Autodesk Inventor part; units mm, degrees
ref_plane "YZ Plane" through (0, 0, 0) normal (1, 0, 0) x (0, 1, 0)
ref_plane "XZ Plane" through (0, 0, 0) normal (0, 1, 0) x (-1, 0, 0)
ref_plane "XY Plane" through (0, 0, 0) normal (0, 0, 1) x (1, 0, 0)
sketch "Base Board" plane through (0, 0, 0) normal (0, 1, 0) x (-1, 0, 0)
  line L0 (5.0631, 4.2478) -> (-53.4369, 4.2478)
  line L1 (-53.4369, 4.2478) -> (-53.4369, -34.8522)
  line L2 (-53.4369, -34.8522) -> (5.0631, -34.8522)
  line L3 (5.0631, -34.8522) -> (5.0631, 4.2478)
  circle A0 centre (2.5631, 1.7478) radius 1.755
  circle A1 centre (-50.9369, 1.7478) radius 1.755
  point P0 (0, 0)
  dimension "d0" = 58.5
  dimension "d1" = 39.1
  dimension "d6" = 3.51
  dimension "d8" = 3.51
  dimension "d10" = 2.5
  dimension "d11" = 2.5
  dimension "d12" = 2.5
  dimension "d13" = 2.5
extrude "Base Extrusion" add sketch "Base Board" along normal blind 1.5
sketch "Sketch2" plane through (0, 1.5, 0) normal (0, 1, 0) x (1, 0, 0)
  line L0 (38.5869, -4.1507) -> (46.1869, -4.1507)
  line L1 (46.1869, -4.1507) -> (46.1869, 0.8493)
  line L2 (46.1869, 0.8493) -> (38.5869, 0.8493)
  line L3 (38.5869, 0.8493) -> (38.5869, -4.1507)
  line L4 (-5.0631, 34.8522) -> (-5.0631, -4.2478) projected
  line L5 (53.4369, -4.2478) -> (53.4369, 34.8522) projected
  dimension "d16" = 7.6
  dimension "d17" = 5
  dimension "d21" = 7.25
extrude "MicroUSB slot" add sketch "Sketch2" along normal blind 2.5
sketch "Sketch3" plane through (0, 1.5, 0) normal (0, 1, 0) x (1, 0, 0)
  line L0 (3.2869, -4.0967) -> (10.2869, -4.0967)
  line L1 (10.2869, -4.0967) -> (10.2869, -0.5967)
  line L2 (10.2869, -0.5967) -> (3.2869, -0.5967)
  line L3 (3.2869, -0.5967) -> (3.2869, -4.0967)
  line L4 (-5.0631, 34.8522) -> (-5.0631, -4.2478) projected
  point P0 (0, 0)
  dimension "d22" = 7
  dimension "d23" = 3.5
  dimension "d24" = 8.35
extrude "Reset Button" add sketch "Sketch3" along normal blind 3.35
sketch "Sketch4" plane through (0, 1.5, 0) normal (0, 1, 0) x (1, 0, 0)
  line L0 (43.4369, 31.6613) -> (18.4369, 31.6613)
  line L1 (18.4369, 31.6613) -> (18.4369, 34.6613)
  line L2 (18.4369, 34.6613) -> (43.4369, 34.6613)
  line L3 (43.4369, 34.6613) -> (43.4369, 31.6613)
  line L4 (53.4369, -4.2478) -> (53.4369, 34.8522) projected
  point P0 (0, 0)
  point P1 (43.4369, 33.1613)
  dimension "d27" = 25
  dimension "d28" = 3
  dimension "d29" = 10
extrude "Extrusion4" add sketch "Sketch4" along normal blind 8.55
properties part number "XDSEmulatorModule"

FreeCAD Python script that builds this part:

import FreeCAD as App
import Part
import Sketcher


def add_polygon(sketch, points):
    """Adds a closed chain of lines whose ends are joined by coincident constraints."""
    first, n = sketch.GeometryCount, len(points)
    for a, b in zip(points, points[1:] + points[:1]):
        sketch.addGeometry(Part.LineSegment(App.Vector(*a, 0), App.Vector(*b, 0)), False)
    for i in range(n):
        sketch.addConstraint(Sketcher.Constraint("Coincident", first + i, 2, first + (i + 1) % n, 1))

doc = App.newDocument("Part")
body = doc.addObject("PartDesign::Body", "Body")

sketch1 = body.newObject("Sketcher::SketchObject", "Sketch")
sketch1.AttachmentSupport = (doc.getObject("XZ_Plane"), [""])
sketch1.MapMode = "FlatFace"
add_polygon(sketch1, [(-5.1, -34.9), (-5.1, 4.2), (53.4, 4.2), (53.4, -34.9)])
sketch1.addGeometry(Part.Circle(App.Vector(50.9, 1.7, 0), App.Vector(0, 0, 1), 1.8), False)
sketch1.addGeometry(Part.Circle(App.Vector(-2.6, 1.7, 0), App.Vector(0, 0, 1), 1.8), False)
sketch1.addConstraint([
    Sketcher.Constraint("Vertical", 0),
    Sketcher.Constraint("Horizontal", 1),
    Sketcher.Constraint("Vertical", 2),
    Sketcher.Constraint("Horizontal", 3),
    Sketcher.Constraint("Equal", 4, 5),
    Sketcher.Constraint("Horizontal", 4, 3, 5, 3),
    Sketcher.Constraint("Diameter", 4, 3.51),
    Sketcher.Constraint("DistanceX", 1, 1, 1, 2, 58.5),
    Sketcher.Constraint("DistanceY", 0, 1, 0, 2, 39.1),
    Sketcher.Constraint("DistanceX", 0, 2, 5, 3, 2.5),
    Sketcher.Constraint("DistanceY", 5, 3, 0, 2, 2.5),
    Sketcher.Constraint("DistanceX", 4, 3, 1, 2, 2.5),
    Sketcher.Constraint("DistanceX", -1, 1, 4, 3, 50.937),
    Sketcher.Constraint("DistanceY", -1, 1, 4, 3, 1.7478),
])
pad1 = body.newObject("PartDesign::Pad", "Pad")
pad1.Profile = sketch1
pad1.Length = 1.5
pad1.Reversed = True

sketch2 = body.newObject("Sketcher::SketchObject", "Sketch001")
sketch2.AttachmentSupport = (doc.getObject("XZ_Plane"), [""])
sketch2.MapMode = "FlatFace"
sketch2.AttachmentOffset = App.Placement(App.Vector(0, 0, -1.5), App.Rotation())
add_polygon(sketch2, [(39, -1), (39, 4), (46, 4), (46, -1)])
sketch2.addConstraint([
    Sketcher.Constraint("Vertical", 0),
    Sketcher.Constraint("Horizontal", 1),
    Sketcher.Constraint("Vertical", 2),
    Sketcher.Constraint("Horizontal", 3),
    Sketcher.Constraint("DistanceY", 0, 1, 0, 2, 5.0),
    Sketcher.Constraint("DistanceX", 1, 1, 1, 2, 7.6),
    Sketcher.Constraint("DistanceX", -1, 1, 0, 2, 38.587),
    Sketcher.Constraint("DistanceY", -1, 1, 0, 2, 4.1507),
])
pad2 = body.newObject("PartDesign::Pad", "Pad001")
pad2.Profile = sketch2
pad2.Length = 2.5
pad2.Reversed = True

sketch3 = body.newObject("Sketcher::SketchObject", "Sketch002")
sketch3.AttachmentSupport = (doc.getObject("XZ_Plane"), [""])
sketch3.MapMode = "FlatFace"
sketch3.AttachmentOffset = App.Placement(App.Vector(0, 0, -1.5), App.Rotation())
add_polygon(sketch3, [(3.3, 0.6), (3.3, 4.1), (10.3, 4.1), (10.3, 0.6)])
sketch3.addConstraint([
    Sketcher.Constraint("Vertical", 0),
    Sketcher.Constraint("Horizontal", 1),
    Sketcher.Constraint("Vertical", 2),
    Sketcher.Constraint("Horizontal", 3),
    Sketcher.Constraint("DistanceX", 1, 1, 1, 2, 7.0),
    Sketcher.Constraint("DistanceY", 0, 1, 0, 2, 3.5),
    Sketcher.Constraint("DistanceX", -1, 1, 0, 2, 3.287),
    Sketcher.Constraint("DistanceY", -1, 1, 0, 2, 4.0967),
])
pad3 = body.newObject("PartDesign::Pad", "Pad002")
pad3.Profile = sketch3
pad3.Length = 3.35
pad3.Reversed = True

sketch4 = body.newObject("Sketcher::SketchObject", "Sketch003")
sketch4.AttachmentSupport = (doc.getObject("XZ_Plane"), [""])
sketch4.MapMode = "FlatFace"
sketch4.AttachmentOffset = App.Placement(App.Vector(0, 0, -1.5), App.Rotation())
add_polygon(sketch4, [(18.4, -31.7), (43.4, -31.7), (43.4, -34.7), (18.4, -34.7)])
sketch4.addConstraint([
    Sketcher.Constraint("Horizontal", 0),
    Sketcher.Constraint("Vertical", 1),
    Sketcher.Constraint("Horizontal", 2),
    Sketcher.Constraint("Vertical", 3),
    Sketcher.Constraint("DistanceX", 0, 1, 0, 2, 25.0),
    Sketcher.Constraint("DistanceY", 1, 2, 1, 1, 3.0),
    Sketcher.Constraint("DistanceX", -1, 1, 0, 2, 43.437),
    Sketcher.Constraint("DistanceY", 0, 2, -1, 1, 31.6613),
])
pad4 = body.newObject("PartDesign::Pad", "Pad003")
pad4.Profile = sketch4
pad4.Length = 8.55
pad4.Reversed = True

doc.recompute()
